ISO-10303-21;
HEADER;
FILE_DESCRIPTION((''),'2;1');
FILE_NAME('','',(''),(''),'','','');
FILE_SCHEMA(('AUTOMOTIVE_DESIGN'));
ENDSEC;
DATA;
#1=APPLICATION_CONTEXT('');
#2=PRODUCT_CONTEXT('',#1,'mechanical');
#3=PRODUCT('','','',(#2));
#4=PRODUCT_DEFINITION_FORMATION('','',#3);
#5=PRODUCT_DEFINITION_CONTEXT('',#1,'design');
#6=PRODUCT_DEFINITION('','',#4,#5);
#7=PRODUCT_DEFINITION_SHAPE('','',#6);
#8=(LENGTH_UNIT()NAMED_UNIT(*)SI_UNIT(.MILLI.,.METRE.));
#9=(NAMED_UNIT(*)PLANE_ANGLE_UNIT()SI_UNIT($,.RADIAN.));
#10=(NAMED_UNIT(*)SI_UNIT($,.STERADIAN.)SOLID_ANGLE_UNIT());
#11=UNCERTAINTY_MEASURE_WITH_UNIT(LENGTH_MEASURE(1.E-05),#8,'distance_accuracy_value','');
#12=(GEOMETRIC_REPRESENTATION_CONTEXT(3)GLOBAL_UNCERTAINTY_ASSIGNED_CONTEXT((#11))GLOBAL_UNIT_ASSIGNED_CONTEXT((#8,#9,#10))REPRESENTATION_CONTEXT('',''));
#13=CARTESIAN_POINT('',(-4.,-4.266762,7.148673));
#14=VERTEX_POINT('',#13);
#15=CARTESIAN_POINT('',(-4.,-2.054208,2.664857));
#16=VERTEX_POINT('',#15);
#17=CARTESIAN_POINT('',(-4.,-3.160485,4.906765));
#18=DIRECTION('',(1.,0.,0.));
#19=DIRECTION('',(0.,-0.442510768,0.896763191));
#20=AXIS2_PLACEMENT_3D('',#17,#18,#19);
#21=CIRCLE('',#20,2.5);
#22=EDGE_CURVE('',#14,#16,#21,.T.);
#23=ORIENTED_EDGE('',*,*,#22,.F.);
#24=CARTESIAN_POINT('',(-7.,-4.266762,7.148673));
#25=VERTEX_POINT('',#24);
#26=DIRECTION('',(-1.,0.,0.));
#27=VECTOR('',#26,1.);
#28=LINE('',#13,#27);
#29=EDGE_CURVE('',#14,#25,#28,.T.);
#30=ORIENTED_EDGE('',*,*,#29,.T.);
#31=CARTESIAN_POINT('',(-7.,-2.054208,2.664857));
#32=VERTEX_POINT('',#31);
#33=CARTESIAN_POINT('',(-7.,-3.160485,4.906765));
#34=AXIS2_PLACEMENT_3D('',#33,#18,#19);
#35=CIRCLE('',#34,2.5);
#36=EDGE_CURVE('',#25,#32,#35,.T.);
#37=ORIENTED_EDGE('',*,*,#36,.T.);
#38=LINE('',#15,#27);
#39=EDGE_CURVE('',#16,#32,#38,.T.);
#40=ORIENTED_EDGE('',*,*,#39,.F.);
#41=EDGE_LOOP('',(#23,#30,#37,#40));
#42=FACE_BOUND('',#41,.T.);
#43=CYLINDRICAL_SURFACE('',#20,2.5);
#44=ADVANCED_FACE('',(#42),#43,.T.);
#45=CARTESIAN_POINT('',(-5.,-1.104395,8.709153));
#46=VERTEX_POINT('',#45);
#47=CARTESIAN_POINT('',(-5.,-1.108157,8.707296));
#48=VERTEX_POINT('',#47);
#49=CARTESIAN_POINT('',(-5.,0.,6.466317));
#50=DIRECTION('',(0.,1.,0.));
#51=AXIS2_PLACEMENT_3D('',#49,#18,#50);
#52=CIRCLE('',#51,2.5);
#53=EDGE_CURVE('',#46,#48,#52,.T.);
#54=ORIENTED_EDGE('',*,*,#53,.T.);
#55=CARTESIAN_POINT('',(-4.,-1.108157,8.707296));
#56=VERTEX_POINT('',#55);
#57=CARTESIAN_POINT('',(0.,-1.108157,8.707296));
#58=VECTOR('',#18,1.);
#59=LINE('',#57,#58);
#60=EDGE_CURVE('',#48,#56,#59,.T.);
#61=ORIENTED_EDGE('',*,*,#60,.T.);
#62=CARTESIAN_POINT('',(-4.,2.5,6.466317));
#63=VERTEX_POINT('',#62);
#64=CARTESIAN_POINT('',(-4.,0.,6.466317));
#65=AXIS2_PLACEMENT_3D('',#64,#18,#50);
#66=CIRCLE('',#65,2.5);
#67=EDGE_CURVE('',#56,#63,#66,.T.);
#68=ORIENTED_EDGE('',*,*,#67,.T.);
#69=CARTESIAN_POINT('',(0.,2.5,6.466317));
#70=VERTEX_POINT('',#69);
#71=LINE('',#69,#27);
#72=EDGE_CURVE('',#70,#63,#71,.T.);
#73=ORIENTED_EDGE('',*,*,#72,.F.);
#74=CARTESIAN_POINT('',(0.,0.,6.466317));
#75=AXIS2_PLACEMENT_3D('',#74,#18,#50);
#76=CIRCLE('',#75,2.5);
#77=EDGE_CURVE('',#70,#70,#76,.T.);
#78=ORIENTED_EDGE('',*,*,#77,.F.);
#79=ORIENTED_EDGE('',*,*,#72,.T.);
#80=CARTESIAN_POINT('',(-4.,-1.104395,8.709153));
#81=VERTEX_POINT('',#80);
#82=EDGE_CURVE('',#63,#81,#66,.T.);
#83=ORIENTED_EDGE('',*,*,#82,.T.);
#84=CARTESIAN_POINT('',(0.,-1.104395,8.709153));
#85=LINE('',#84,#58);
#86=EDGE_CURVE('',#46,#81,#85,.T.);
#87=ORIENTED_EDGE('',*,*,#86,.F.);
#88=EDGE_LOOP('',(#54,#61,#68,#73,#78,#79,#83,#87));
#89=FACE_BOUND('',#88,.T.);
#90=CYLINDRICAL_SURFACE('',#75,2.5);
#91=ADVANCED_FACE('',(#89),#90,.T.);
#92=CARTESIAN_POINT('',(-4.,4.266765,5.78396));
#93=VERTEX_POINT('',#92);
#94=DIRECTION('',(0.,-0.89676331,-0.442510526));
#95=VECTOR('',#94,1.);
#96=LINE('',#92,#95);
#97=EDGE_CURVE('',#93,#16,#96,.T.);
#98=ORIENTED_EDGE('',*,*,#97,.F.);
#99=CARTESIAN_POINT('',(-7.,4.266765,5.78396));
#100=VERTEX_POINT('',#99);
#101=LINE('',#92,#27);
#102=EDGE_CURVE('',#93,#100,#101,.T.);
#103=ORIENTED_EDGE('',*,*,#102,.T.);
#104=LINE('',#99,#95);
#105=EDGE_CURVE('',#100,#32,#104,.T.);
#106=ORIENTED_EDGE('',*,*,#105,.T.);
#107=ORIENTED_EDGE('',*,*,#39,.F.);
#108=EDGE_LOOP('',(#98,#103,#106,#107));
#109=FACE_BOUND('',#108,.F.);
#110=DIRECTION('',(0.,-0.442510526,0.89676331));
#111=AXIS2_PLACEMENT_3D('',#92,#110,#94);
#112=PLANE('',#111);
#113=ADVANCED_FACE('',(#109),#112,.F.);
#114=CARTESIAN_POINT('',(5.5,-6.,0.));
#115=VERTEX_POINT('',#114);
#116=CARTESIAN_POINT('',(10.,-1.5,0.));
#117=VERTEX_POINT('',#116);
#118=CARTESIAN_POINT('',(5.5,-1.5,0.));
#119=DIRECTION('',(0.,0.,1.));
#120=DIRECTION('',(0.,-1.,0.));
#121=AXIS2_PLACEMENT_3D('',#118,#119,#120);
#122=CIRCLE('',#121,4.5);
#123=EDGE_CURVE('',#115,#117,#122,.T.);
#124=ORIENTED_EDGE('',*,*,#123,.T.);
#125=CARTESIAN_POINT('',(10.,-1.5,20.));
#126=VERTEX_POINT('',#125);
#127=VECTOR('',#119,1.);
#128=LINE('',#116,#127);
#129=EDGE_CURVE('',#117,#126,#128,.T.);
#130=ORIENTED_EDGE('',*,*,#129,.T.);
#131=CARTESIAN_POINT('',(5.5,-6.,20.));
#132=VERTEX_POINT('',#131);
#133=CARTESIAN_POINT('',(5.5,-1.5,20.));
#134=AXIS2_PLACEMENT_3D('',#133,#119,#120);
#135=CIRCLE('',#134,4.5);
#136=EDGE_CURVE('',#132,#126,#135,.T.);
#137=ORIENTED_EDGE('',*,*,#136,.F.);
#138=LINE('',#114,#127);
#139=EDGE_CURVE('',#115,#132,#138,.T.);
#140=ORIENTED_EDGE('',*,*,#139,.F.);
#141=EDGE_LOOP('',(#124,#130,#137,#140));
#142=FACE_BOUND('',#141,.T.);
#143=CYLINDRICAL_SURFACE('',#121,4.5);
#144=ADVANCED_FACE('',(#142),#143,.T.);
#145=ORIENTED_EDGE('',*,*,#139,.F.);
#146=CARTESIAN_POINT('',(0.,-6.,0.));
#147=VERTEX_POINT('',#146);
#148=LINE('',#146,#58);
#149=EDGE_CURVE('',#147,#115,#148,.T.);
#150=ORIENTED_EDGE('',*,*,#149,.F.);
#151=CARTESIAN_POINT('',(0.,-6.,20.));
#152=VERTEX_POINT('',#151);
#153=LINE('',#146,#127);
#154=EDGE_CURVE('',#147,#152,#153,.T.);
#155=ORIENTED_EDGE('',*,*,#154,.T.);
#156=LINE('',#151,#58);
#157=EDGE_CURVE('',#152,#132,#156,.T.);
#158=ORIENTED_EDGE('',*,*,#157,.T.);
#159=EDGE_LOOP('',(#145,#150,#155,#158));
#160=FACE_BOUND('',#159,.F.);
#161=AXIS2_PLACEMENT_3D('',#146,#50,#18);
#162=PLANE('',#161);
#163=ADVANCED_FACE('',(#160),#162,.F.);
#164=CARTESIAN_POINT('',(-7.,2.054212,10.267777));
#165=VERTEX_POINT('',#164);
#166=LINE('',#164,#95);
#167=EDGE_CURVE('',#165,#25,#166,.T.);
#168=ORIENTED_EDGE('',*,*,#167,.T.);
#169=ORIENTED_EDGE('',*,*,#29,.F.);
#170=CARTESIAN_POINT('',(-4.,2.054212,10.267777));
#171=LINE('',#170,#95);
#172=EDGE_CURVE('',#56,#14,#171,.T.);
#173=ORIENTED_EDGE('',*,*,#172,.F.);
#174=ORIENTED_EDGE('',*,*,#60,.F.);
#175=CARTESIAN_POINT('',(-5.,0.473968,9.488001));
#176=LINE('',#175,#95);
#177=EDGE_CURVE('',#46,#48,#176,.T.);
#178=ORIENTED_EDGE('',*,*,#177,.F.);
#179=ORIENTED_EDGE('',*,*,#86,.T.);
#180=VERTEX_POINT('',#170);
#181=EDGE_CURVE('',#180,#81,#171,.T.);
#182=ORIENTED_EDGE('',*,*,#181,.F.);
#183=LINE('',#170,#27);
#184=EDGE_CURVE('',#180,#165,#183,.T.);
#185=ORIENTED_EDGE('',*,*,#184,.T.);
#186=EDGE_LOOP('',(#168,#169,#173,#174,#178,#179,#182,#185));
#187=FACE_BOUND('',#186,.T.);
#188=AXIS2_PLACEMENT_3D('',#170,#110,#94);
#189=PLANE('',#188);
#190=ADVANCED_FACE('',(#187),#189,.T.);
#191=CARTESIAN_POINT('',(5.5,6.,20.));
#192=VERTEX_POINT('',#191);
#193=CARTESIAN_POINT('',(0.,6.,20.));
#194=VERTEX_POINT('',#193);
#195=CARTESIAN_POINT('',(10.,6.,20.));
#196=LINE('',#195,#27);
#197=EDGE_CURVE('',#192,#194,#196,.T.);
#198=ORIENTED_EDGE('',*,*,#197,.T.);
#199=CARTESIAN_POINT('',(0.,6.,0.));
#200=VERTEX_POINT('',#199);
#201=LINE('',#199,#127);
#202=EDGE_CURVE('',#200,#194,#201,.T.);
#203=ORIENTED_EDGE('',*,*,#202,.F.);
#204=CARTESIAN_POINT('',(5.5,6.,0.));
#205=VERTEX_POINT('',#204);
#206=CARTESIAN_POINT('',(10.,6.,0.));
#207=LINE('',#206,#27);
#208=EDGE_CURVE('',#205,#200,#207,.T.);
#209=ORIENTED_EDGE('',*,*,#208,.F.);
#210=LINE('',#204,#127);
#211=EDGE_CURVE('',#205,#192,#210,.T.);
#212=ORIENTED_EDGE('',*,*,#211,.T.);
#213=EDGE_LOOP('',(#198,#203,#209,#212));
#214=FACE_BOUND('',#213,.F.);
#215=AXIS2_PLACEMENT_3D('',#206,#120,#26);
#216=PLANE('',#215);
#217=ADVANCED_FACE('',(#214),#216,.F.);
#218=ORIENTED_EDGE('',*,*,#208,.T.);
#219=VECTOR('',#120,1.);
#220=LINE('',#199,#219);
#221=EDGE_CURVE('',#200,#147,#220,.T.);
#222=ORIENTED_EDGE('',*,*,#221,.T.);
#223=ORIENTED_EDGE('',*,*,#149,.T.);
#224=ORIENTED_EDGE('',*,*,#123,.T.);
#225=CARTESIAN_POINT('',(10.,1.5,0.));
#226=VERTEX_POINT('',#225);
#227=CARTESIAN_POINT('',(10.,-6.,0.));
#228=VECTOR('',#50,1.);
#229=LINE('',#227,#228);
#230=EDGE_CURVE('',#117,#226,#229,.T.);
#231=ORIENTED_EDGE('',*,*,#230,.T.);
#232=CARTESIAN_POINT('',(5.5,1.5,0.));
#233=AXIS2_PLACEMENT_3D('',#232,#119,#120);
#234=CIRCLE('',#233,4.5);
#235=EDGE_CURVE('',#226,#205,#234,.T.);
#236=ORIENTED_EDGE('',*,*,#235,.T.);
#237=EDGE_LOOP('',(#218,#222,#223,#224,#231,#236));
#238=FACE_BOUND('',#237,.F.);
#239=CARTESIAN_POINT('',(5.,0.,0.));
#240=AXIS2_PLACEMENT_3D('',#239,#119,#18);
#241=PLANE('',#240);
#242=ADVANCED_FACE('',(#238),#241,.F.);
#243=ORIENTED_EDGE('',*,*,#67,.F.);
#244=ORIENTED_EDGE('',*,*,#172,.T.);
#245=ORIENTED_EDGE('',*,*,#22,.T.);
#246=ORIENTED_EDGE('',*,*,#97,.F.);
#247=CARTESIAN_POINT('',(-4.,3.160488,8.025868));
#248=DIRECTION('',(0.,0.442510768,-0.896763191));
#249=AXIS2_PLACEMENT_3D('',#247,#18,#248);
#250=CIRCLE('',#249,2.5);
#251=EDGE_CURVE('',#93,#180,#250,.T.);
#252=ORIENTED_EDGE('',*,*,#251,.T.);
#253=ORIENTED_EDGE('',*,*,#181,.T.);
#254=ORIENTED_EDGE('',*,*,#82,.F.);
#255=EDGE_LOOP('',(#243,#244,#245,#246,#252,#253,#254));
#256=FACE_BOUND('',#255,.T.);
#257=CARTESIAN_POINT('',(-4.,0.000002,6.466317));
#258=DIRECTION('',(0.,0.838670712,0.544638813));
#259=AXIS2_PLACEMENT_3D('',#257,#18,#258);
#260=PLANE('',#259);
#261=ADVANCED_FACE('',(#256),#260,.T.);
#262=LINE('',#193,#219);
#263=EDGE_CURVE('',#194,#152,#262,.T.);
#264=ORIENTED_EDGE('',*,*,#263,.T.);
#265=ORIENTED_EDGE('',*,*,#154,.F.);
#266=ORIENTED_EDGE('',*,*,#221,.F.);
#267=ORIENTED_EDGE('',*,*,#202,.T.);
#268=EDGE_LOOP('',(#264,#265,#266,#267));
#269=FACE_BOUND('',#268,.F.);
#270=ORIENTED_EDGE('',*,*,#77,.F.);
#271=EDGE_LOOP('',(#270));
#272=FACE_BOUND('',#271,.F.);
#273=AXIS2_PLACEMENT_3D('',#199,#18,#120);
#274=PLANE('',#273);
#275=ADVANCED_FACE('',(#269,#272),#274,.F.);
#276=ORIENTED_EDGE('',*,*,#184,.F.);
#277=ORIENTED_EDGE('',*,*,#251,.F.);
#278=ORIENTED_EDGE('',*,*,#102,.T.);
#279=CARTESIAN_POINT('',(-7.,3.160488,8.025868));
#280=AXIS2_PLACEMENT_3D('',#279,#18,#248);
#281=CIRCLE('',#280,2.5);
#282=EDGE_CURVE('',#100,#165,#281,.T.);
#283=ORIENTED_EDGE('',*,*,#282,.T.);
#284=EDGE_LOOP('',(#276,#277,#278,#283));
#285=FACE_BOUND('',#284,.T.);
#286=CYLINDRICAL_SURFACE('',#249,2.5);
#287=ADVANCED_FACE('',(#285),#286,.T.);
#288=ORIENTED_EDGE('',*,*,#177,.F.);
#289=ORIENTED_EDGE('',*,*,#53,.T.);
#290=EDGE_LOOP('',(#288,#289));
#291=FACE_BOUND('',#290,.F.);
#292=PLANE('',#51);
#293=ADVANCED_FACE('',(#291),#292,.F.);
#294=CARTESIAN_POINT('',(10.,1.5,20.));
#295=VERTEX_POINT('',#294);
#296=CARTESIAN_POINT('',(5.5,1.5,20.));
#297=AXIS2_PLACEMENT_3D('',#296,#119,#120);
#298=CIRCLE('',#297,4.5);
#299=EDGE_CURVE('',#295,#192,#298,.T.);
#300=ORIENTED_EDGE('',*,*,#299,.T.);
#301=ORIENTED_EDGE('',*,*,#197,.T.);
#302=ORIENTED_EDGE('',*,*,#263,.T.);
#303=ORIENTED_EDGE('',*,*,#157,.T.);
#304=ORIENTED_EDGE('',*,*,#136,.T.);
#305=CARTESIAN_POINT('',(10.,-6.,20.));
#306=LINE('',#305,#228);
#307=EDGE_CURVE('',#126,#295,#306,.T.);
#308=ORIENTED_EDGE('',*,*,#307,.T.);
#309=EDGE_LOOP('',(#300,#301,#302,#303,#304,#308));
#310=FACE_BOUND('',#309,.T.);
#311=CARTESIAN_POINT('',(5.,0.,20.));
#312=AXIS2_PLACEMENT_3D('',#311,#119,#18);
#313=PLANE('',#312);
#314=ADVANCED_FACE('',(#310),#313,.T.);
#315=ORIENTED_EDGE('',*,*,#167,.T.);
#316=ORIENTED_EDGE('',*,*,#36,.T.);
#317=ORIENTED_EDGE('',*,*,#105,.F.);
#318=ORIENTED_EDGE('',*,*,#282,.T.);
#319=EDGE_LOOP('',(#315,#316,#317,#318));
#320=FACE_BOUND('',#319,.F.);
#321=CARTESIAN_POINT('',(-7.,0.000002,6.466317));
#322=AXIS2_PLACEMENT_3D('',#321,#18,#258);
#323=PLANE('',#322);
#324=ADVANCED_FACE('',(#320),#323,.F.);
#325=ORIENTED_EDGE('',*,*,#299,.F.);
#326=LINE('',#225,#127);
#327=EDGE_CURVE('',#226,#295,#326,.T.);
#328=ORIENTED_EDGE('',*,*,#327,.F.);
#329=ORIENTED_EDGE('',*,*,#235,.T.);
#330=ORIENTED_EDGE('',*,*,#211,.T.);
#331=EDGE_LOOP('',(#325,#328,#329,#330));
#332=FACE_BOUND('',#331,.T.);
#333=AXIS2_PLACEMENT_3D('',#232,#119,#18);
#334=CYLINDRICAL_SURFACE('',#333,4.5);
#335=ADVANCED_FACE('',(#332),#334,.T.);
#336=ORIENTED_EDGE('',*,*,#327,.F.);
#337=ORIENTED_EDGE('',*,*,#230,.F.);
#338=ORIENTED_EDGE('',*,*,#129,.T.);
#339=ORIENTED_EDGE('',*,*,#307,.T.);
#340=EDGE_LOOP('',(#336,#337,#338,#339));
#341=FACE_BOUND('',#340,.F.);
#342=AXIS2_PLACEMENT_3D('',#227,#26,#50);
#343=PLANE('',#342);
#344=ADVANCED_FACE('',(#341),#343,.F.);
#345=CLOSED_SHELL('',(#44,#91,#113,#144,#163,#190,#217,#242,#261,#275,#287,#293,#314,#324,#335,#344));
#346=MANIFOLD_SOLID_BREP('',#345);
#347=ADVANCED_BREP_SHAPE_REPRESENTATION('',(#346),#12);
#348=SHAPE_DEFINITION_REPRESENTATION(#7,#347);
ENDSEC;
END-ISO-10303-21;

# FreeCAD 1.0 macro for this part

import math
import FreeCAD as App
import Part
import Sketcher


def edges_at(feature, points):
    """Names of the edges that pass closest to the given points."""
    edges = feature.Shape.Edges
    near = lambda p: min(range(len(edges)), key=lambda i: edges[i].distToShape(Part.Vertex(*p))[0])
    return sorted({f"Edge{near(p) + 1}" for p in points})

doc = App.newDocument("Part")
params = doc.addObject("Spreadsheet::Sheet", "Params")
for row, (alias, value) in enumerate([
    ("sketch1_width", "10 mm"),
    ("sketch1_height", "12 mm"),
    ("pad1_length", "20 mm"),
    ("fillet_radius", "4.5 mm"),
    ("sketch2_diameter", "5 mm"),
    ("pad2_length", "5 mm"),
    ("sketch3_radius", "2.5 mm"),
    ("pad3_length", "3 mm"),
], start=1):
    params.set(f"A{row}", alias)
    params.set(f"B{row}", "=" + value)
    params.setAlias(f"B{row}", alias)

body = doc.addObject("PartDesign::Body", "Body")

sketch1 = doc.addObject("Sketcher::SketchObject", "Sketch")
body.addObject(sketch1)
sketch1.AttachmentSupport = (doc.XY_Plane, [""])
sketch1.MapMode = "FlatFace"
sketch1.addGeometry([
    Part.LineSegment(App.Vector(0, -6, 0), App.Vector(10, -6, 0)),
    Part.LineSegment(App.Vector(10, -6, 0), App.Vector(10, 6, 0)),
    Part.LineSegment(App.Vector(10, 6, 0), App.Vector(0, 6, 0)),
    Part.LineSegment(App.Vector(0, 6, 0), App.Vector(0, -6, 0)),
], False)
sketch1.addConstraint([
    Sketcher.Constraint("Coincident", 0, 2, 1, 1),
    Sketcher.Constraint("Coincident", 1, 2, 2, 1),
    Sketcher.Constraint("Coincident", 2, 2, 3, 1),
    Sketcher.Constraint("Coincident", 3, 2, 0, 1),
    Sketcher.Constraint("Horizontal", 0),
    Sketcher.Constraint("Vertical", 1),
    Sketcher.Constraint("Horizontal", 2),
    Sketcher.Constraint("Vertical", 3),
    Sketcher.Constraint("Symmetric", 2, 2, 3, 2, -1, 1),
    Sketcher.Constraint("DistanceX", 0, 1, 0, 2, 10.0),
    Sketcher.Constraint("DistanceY", 1, 1, 1, 2, 12.0),
])
sketch1.setExpression("Constraints[9]", "Params.sketch1_width")
sketch1.setExpression("Constraints[10]", "Params.sketch1_height")
pad1 = doc.addObject("PartDesign::Pad", "Pad")
body.addObject(pad1)
pad1.Profile = sketch1
pad1.setExpression("Length", "Params.pad1_length")
doc.recompute()

fillet = doc.addObject("PartDesign::Fillet", "Fillet")
body.addObject(fillet)
fillet.Base = (pad1, edges_at(pad1, [(10, -6, 10), (10, 6, 10)]))
fillet.setExpression("Radius", "Params.fillet_radius")

sketch2 = doc.addObject("Sketcher::SketchObject", "Sketch001")
body.addObject(sketch2)
sketch2.AttachmentSupport = (doc.YZ_Plane, [""])
sketch2.MapMode = "FlatFace"
sketch2.addGeometry(Part.Circle(App.Vector(0, 6.5, 0), App.Vector(0, 0, 1), 2.5), False)
sketch2.addConstraint([
    Sketcher.Constraint("PointOnObject", 0, 3, -2),
    Sketcher.Constraint("Diameter", 0, 5.0),
    Sketcher.Constraint("DistanceY", -1, 1, 0, 3, 6.466317),
])
sketch2.setExpression("Constraints[1]", "Params.sketch2_diameter")
pad2 = doc.addObject("PartDesign::Pad", "Pad001")
body.addObject(pad2)
pad2.Profile = sketch2
pad2.setExpression("Length", "Params.pad2_length")
pad2.Reversed = True

sketch3 = doc.addObject("Sketcher::SketchObject", "Sketch002")
body.addObject(sketch3)
sketch3.AttachmentSupport = (doc.YZ_Plane, [""])
sketch3.MapMode = "FlatFace"
sketch3.AttachmentOffset = App.Placement(App.Vector(0, 0, -4), App.Rotation())
sketch3.addGeometry([
    Part.ArcOfCircle(Part.Circle(App.Vector(3.2, 8, 0), App.Vector(0, 0, 1), 2.5), math.radians(-64), math.radians(116)),
    Part.LineSegment(App.Vector(2.1, 10.3, 0), App.Vector(-4.3, 7.1, 0)),
    Part.ArcOfCircle(Part.Circle(App.Vector(-3.2, 4.9, 0), App.Vector(0, 0, 1), 2.5), math.radians(116), math.radians(296)),
    Part.LineSegment(App.Vector(-2.1, 2.7, 0), App.Vector(4.3, 5.8, 0)),
], False)
sketch3.addConstraint([
    Sketcher.Constraint("Tangent", 0, 2, 1, 1),
    Sketcher.Constraint("Tangent", 1, 2, 2, 1),
    Sketcher.Constraint("Tangent", 2, 2, 3, 1),
    Sketcher.Constraint("Tangent", 3, 2, 0, 1),
    Sketcher.Constraint("Equal", 0, 2),
    Sketcher.Constraint("Radius", 0, 2.5),
    Sketcher.Constraint("DistanceX", -1, 1, 0, 3, 3.160488),
    Sketcher.Constraint("DistanceY", -1, 1, 0, 3, 8.025868),
    Sketcher.Constraint("DistanceX", -1, 1, 0, 2, 2.054212),
    Sketcher.Constraint("DistanceX", 1, 2, -1, 1, 4.266762),
])
sketch3.setExpression("Constraints[5]", "Params.sketch3_radius")
pad3 = doc.addObject("PartDesign::Pad", "Pad002")
body.addObject(pad3)
pad3.Profile = sketch3
pad3.setExpression("Length", "Params.pad3_length")
pad3.Reversed = True

doc.recompute()
